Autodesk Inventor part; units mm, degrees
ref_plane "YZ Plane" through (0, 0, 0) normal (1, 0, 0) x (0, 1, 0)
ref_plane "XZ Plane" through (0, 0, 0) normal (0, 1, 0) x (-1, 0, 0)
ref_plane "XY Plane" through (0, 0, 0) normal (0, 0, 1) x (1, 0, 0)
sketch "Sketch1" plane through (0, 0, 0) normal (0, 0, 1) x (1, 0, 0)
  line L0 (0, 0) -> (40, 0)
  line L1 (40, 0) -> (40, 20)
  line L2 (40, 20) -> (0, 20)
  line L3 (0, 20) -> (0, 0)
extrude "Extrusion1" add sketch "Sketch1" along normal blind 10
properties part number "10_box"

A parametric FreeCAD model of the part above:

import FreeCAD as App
import Part
import Sketcher
from FreeCAD import Vector
Q = App.Units.Quantity

doc = App.newDocument("Part")
params = doc.addObject("Spreadsheet::Sheet", "Params")
for row, (alias, value) in enumerate([
    ("sketch1_width", "40 mm"),
    ("sketch1_height", "20 mm"),
    ("pad1_length", "10 mm"),
], start=1):
    params.set(f"A{row}", alias)
    params.set(f"B{row}", "=" + value)
    params.setAlias(f"B{row}", alias)

body = doc.addObject("PartDesign::Body", "Body")

# Sketch on XY plane
sketch1 = body.newObject("Sketcher::SketchObject", "Sketch")
sketch1.AttachmentSupport = (doc.getObject("XY_Plane"), [""])
sketch1.MapMode = "FlatFace"
sketch1.addGeometry([
    Part.LineSegment(Vector(0, 20, 0), Vector(0, 0, 0)),
    Part.LineSegment(Vector(0, 0, 0), Vector(40, 0, 0)),
    Part.LineSegment(Vector(40, 0, 0), Vector(40, 20, 0)),
    Part.LineSegment(Vector(40, 20, 0), Vector(0, 20, 0)),
], False)
sketch1.addConstraint([
    Sketcher.Constraint("Coincident", 0, 2, 1, 1),
    Sketcher.Constraint("Coincident", 1, 2, 2, 1),
    Sketcher.Constraint("Coincident", 2, 2, 3, 1),
    Sketcher.Constraint("Coincident", 3, 2, 0, 1),
    Sketcher.Constraint("Vertical", 0),
    Sketcher.Constraint("Horizontal", 1),
    Sketcher.Constraint("Vertical", 2),
    Sketcher.Constraint("Horizontal", 3),
    Sketcher.Constraint("Coincident", 0, 2, -1, 1),
    Sketcher.Constraint("DistanceX", 1, 1, 1, 2, Q("40 mm")),
    Sketcher.Constraint("DistanceY", 0, 2, 0, 1, Q("20 mm")),
])
sketch1.setExpression("Constraints[9]", "Params.sketch1_width")
sketch1.setExpression("Constraints[10]", "Params.sketch1_height")
pad1 = body.newObject("PartDesign::Pad", "Pad")
pad1.Profile = sketch1
pad1.setExpression("Length", "Params.pad1_length")

doc.recompute()
